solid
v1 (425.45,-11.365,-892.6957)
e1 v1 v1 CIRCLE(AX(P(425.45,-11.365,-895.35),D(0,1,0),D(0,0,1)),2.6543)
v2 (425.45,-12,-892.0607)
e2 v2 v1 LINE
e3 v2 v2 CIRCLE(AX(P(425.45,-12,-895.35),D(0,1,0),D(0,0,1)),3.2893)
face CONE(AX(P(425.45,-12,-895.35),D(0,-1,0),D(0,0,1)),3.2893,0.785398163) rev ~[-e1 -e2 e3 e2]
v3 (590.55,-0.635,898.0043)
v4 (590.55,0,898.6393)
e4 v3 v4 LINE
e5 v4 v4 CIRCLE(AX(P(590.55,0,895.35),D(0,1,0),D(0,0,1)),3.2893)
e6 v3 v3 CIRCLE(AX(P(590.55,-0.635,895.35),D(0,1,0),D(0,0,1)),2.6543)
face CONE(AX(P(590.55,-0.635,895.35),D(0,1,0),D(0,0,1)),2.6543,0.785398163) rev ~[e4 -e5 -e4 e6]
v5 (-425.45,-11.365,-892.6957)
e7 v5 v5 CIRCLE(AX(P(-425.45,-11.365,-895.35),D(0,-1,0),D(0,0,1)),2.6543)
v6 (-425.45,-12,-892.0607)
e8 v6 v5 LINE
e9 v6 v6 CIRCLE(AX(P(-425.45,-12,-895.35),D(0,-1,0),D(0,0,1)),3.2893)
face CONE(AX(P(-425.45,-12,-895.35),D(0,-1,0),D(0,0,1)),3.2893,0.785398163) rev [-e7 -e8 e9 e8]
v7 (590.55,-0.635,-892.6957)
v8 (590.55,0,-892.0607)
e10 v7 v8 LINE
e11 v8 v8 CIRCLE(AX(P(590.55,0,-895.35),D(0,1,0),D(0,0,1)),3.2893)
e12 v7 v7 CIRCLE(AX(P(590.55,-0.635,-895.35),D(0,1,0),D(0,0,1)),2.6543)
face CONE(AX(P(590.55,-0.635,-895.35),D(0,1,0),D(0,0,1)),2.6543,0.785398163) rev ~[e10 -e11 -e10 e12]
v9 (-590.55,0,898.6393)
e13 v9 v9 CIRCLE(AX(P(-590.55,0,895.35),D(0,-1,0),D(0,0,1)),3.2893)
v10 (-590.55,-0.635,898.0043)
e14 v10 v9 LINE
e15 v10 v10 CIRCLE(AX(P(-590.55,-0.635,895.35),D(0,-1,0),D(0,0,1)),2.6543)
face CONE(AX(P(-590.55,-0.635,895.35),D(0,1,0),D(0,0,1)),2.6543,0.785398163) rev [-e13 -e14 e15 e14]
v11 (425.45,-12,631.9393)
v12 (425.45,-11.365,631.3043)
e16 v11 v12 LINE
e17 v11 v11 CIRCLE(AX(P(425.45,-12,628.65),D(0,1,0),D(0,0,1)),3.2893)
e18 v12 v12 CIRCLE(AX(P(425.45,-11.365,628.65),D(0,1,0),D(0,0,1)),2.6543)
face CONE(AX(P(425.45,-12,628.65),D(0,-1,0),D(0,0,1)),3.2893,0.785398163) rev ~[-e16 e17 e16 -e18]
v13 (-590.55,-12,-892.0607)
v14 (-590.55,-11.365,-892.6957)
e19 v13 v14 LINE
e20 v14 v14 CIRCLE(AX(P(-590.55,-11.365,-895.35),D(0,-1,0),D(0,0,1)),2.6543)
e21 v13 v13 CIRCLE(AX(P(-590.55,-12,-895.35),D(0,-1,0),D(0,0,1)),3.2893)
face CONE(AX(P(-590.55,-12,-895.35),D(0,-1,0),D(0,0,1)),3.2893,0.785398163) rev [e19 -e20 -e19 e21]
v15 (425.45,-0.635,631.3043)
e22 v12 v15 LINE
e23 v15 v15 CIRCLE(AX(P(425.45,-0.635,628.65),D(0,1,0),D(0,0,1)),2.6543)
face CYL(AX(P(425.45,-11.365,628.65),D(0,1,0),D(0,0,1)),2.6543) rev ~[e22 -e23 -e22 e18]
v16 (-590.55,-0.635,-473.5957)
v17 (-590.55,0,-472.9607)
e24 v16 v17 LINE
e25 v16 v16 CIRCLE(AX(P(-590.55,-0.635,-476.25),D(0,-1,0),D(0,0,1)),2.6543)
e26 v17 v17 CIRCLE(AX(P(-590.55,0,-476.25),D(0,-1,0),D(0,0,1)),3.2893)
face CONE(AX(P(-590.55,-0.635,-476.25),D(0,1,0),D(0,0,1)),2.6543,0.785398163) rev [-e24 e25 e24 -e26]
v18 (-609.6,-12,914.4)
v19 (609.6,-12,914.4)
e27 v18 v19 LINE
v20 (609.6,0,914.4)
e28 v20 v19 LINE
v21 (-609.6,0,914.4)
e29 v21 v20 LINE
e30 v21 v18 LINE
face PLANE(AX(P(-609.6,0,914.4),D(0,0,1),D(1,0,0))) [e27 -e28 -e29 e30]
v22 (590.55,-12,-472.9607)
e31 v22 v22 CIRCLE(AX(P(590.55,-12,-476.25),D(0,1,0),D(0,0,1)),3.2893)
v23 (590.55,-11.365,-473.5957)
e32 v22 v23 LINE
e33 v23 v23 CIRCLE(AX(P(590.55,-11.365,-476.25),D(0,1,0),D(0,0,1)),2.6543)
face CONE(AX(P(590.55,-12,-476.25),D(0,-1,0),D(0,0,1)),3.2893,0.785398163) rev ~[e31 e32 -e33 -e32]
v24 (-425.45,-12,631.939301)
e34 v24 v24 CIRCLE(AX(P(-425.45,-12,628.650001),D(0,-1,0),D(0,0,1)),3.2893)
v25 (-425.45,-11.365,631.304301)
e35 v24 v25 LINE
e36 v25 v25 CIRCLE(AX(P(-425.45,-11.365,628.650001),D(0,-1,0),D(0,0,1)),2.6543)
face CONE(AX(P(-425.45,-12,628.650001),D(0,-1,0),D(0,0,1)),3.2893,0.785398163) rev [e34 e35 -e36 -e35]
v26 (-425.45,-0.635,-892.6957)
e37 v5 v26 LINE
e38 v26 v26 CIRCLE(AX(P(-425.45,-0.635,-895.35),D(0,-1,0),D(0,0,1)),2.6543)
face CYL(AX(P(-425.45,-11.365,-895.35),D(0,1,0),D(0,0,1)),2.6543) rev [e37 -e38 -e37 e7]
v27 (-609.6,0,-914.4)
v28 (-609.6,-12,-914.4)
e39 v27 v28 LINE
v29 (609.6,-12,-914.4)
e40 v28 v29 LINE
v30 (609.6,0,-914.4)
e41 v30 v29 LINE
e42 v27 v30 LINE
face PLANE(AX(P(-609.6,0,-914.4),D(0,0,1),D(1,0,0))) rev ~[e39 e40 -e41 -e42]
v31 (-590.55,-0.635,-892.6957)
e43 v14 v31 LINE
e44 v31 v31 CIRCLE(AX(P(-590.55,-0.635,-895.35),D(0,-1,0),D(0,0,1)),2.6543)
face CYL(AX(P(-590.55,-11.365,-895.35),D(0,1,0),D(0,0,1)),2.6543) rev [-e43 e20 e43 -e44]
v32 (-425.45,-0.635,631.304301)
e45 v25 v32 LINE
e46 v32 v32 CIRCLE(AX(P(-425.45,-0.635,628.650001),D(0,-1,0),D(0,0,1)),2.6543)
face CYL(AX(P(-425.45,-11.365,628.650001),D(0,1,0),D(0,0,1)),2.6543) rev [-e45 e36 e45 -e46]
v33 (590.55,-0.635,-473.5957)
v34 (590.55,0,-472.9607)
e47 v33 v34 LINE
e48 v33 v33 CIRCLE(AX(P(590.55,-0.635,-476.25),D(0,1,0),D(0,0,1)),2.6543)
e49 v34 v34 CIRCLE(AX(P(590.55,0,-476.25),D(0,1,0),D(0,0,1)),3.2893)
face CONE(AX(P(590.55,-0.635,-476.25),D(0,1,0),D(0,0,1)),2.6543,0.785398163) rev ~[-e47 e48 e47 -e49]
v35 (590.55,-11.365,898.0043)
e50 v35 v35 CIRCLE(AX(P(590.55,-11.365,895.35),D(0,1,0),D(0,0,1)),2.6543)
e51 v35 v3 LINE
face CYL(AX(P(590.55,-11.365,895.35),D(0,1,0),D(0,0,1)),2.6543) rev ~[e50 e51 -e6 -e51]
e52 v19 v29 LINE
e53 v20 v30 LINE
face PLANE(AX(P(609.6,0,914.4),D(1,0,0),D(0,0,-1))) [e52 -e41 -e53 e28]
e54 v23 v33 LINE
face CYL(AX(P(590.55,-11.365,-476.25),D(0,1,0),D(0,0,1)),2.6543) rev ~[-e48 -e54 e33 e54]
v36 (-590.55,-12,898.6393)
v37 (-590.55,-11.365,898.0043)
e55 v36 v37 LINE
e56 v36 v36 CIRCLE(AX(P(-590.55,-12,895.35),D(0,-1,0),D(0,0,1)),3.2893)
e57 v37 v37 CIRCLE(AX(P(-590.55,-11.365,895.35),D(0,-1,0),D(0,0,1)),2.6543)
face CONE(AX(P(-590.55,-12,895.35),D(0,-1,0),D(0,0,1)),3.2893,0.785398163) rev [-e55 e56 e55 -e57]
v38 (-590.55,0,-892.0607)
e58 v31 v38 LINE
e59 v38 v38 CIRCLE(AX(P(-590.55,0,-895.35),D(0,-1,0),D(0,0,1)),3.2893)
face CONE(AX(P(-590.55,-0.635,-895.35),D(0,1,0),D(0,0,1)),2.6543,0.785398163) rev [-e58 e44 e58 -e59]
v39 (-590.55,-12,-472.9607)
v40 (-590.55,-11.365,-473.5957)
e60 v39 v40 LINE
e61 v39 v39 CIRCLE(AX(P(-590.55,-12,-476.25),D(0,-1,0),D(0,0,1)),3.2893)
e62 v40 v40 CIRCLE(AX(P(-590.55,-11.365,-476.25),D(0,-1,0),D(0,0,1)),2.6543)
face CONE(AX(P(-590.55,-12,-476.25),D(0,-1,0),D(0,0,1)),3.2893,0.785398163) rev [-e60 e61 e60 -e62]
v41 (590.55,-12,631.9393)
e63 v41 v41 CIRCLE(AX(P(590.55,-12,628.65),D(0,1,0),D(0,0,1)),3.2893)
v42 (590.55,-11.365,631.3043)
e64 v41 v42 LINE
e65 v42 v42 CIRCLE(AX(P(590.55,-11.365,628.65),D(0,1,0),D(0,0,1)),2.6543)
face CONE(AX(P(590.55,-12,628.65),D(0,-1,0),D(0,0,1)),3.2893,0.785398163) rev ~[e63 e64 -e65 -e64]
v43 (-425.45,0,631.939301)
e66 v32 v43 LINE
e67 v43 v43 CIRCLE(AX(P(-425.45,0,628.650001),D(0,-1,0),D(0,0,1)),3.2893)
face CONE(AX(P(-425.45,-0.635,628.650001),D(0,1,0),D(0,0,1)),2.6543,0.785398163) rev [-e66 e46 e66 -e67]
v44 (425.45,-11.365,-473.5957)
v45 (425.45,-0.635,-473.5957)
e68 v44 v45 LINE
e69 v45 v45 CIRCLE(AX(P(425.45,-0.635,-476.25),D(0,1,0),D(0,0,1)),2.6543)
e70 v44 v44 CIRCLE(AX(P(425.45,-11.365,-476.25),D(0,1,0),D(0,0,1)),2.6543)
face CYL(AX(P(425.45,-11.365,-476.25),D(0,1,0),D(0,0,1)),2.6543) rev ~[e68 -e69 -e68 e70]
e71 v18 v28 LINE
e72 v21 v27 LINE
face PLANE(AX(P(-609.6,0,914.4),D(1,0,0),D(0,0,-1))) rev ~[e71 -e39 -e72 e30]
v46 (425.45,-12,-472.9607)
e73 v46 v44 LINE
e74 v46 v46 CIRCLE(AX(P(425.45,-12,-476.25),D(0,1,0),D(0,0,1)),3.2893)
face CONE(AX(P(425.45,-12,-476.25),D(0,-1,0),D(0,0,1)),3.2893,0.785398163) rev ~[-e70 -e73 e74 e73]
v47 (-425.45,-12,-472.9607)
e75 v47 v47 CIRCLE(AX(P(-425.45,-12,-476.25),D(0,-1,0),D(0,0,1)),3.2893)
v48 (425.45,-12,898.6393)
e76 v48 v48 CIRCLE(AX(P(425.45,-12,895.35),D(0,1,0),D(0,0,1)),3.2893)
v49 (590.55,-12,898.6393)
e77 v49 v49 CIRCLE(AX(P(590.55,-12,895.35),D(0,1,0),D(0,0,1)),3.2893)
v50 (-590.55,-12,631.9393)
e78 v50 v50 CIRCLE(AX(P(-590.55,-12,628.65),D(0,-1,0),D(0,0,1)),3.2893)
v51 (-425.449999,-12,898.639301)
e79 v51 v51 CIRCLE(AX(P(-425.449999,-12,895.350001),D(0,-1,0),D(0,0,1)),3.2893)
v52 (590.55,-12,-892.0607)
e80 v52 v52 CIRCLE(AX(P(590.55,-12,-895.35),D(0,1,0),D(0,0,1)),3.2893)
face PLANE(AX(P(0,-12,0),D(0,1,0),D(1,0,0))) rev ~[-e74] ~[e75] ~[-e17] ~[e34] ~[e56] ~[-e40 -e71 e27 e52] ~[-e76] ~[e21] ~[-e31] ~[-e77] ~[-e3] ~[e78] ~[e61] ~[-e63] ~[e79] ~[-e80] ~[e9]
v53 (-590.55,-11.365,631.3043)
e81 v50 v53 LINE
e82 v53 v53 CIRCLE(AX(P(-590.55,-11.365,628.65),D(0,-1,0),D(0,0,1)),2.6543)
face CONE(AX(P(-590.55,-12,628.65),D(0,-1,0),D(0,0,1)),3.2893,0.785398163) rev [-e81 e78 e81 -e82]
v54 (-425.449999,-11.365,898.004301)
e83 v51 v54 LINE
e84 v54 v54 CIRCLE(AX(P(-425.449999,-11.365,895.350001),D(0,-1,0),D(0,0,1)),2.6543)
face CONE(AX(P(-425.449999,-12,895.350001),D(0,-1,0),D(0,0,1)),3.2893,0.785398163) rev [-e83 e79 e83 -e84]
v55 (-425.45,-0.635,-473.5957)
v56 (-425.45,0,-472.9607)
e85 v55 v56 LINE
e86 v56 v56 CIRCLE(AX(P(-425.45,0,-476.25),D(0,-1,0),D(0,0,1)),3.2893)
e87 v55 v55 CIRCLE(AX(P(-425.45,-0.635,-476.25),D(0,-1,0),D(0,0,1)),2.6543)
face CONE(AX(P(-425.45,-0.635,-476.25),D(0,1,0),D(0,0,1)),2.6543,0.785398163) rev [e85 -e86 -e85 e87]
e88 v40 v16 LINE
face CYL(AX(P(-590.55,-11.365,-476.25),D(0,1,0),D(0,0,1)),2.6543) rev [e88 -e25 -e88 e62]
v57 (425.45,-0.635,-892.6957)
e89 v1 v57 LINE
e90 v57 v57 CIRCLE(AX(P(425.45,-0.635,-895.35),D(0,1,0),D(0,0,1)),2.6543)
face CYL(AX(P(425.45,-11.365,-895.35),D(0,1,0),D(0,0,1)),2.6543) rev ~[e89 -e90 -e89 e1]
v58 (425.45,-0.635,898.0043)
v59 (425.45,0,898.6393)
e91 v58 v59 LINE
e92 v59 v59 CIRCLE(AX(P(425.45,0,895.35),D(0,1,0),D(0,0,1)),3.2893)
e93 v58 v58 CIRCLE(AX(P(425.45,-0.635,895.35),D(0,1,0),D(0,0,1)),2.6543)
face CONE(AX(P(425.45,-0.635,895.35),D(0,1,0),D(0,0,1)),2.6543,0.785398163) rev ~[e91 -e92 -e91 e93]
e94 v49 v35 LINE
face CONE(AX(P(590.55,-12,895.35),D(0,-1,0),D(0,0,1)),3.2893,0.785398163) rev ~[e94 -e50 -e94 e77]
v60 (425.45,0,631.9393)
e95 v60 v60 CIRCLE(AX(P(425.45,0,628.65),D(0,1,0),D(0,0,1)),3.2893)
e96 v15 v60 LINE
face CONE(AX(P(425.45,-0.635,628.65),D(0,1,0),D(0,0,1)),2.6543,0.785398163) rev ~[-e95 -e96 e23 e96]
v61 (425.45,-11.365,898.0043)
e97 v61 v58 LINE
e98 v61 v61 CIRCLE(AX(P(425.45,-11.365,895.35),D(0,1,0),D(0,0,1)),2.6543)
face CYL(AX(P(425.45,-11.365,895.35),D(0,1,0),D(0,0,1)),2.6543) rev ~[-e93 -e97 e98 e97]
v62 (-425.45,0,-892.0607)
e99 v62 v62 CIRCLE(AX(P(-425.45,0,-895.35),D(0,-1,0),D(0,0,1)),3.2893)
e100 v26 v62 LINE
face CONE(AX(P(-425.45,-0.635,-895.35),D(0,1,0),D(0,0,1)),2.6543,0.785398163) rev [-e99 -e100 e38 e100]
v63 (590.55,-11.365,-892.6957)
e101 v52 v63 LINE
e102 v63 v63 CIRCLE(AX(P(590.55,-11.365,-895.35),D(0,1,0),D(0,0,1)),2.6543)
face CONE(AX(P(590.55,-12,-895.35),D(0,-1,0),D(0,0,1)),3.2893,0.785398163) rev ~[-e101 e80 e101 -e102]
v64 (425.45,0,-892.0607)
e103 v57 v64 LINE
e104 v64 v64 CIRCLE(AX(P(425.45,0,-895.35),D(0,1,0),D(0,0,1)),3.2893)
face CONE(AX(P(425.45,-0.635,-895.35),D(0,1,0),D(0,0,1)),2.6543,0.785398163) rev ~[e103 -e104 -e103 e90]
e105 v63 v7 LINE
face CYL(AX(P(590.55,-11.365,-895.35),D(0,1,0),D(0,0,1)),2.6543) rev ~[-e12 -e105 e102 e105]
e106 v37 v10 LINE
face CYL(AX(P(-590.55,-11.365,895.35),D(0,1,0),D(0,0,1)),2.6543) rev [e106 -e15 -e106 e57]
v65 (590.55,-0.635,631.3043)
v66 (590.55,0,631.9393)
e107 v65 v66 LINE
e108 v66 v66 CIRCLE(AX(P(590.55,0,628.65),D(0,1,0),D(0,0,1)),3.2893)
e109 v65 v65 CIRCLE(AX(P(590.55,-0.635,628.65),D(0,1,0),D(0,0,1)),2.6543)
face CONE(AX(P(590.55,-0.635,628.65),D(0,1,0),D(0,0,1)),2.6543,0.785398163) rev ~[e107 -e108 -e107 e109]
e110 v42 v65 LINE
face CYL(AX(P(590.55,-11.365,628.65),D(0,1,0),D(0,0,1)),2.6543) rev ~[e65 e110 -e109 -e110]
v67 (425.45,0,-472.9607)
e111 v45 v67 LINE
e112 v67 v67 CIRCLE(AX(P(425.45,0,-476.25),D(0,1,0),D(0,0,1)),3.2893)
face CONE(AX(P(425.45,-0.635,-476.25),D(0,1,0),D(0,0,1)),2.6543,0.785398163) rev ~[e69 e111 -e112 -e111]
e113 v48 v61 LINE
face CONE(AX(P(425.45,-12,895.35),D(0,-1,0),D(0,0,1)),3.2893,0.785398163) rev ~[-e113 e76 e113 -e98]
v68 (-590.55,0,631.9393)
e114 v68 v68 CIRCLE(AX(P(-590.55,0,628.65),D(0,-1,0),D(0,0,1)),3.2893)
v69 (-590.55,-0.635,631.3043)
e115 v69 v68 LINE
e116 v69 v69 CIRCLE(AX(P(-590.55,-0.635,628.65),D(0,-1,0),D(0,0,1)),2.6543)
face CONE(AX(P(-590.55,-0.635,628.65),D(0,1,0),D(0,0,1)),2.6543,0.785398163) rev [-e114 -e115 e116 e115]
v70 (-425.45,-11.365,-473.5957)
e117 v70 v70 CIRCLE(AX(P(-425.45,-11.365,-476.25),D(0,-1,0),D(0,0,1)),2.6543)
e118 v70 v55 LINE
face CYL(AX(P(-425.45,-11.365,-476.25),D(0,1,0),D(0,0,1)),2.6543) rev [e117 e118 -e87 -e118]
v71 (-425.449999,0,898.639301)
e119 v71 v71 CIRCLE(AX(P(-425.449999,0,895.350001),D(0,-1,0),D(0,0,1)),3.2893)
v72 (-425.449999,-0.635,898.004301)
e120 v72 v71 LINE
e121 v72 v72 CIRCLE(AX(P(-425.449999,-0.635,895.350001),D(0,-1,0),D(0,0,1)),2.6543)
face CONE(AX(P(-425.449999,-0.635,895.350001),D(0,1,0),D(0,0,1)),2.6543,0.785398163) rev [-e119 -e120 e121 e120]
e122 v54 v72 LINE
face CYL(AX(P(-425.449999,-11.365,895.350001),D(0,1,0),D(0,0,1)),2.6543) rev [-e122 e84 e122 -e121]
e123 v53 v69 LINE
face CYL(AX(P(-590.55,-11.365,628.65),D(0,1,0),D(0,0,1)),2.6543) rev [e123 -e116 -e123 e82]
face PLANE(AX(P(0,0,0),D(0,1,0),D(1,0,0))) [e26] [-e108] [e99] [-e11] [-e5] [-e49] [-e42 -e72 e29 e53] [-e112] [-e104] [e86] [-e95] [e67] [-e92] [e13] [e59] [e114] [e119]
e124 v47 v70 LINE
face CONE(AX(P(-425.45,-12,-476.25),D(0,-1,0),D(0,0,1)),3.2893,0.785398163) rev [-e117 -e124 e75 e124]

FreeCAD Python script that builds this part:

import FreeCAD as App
import Part
import Sketcher

V = App.Vector
Q = App.Units.Quantity

doc = App.newDocument("Part")
params = doc.addObject("Spreadsheet::Sheet", "Params")
for row, (alias, value) in enumerate([
    ("sketch1_width", "48 in"),
    ("sketch1_height", "72 in"),
    ("pad1_length", "12 mm"),
    ("groove_angle", "360 deg"),
    ("linearpattern_pitch", "6.5 in"),
    ("linearpattern2_pitch", "450.447355 mm"),
    ("linearpattern3_pitch", "16.5 in"),
    ("linearpattern4_pitch", "60 in"),
    ("linearpattern5_pitch", "1532.916832 mm"),
    ("linearpattern6_pitch", "1798.294887 mm"),
    ("linearpattern7_pitch", "70.5 in"),
    ("groove2_angle", "360 deg"),
    ("groove3_angle", "360 deg"),
    ("groove4_angle", "360 deg"),
    ("groove5_angle", "360 deg"),
    ("groove6_angle", "360 deg"),
    ("groove7_angle", "360 deg"),
    ("groove8_angle", "360 deg"),
], start=1):
    params.set(f"A{row}", alias)
    params.set(f"B{row}", "=" + value)
    params.setAlias(f"B{row}", alias)

body = doc.addObject("PartDesign::Body", "Body")

# Sketch on XZ plane
sketch1 = body.newObject("Sketcher::SketchObject", "Sketch")
sketch1.AttachmentSupport = (doc.getObject("XZ_Plane"), [""])
sketch1.MapMode = "FlatFace"
sketch1.addGeometry([
    Part.LineSegment(V(-610, -914, 0), V(-610, 914, 0)),
    Part.LineSegment(V(-610, 914, 0), V(610, 914, 0)),
    Part.LineSegment(V(610, 914, 0), V(610, -914, 0)),
    Part.LineSegment(V(610, -914, 0), V(-610, -914, 0)),
], False)
sketch1.addConstraint([
    Sketcher.Constraint("Coincident", 0, 2, 1, 1),
    Sketcher.Constraint("Coincident", 1, 2, 2, 1),
    Sketcher.Constraint("Coincident", 2, 2, 3, 1),
    Sketcher.Constraint("Coincident", 3, 2, 0, 1),
    Sketcher.Constraint("Vertical", 0),
    Sketcher.Constraint("Horizontal", 1),
    Sketcher.Constraint("Vertical", 2),
    Sketcher.Constraint("Horizontal", 3),
    Sketcher.Constraint("Symmetric", 0, 2, 2, 2, -1, 1),
    Sketcher.Constraint("DistanceX", 1, 1, 1, 2, Q("48 in")),
    Sketcher.Constraint("DistanceY", 0, 1, 0, 2, Q("72 in")),
])
sketch1.setExpression("Constraints[9]", "Params.sketch1_width")
sketch1.setExpression("Constraints[10]", "Params.sketch1_height")
pad1 = body.newObject("PartDesign::Pad", "Pad")
pad1.Profile = sketch1
pad1.setExpression("Length", "Params.pad1_length")

# Sketch on YZ plane
sketch2 = body.newObject("Sketcher::SketchObject", "Sketch001")
sketch2.AttachmentSupport = (doc.getObject("YZ_Plane"), [""])
sketch2.MapMode = "FlatFace"
sketch2.AttachmentOffset = App.Placement(V(0, 0, -23.25 * 25.4), App.Rotation())
sketch2.addGeometry([
    Part.LineSegment(V(-12, -895.4, 0), V(0, -895.4, 0)),  # 0
    Part.LineSegment(V(0, -895.4, 0), V(0, -892.1, 0)),  # 1
    Part.LineSegment(V(0, -892.1, 0), V(-0.6, -892.7, 0)),  # 2
    Part.LineSegment(V(-0.6, -892.7, 0), V(-11.4, -892.7, 0)),  # 3
    Part.LineSegment(V(-11.4, -892.7, 0), V(-12, -892.1, 0)),  # 4
    Part.LineSegment(V(-12, -892.1, 0), V(-12, -895.4, 0)),  # 5
], False)
sketch2.addGeometry(Part.LineSegment(V(0, -895.4, 0), V(-12, -895.4, 0)), True)  # axis
sketch2.addConstraint([
    Sketcher.Constraint("Coincident", 0, 2, 1, 1),
    Sketcher.Constraint("Coincident", 1, 2, 2, 1),
    Sketcher.Constraint("Coincident", 2, 2, 3, 1),
    Sketcher.Constraint("Coincident", 3, 2, 4, 1),
    Sketcher.Constraint("Coincident", 4, 2, 5, 1),
    Sketcher.Constraint("Coincident", 5, 2, 0, 1),
    Sketcher.Constraint("Horizontal", 0),
    Sketcher.Constraint("Vertical", 1),
    Sketcher.Constraint("Horizontal", 3),
    Sketcher.Constraint("Vertical", 5),
    Sketcher.Constraint("Horizontal", 6),
    Sketcher.Constraint("Coincident", 6, 1, 0, 2),
    Sketcher.Constraint("PointOnObject", 0, 2, -2),
    Sketcher.Constraint("Perpendicular", 2, 4),
    Sketcher.Constraint("Horizontal", 1, 2, 4, 2),
    Sketcher.Constraint("Vertical", 4, 2, 6, 2),
    Sketcher.Constraint("Equal", 2, 4),
    Sketcher.Constraint("DistanceY", 0, 2, -1, 1, Q("35.25 in")),
    Sketcher.Constraint("DistanceY", 1, 1, 1, 2, Q("0.1295 in")),
    Sketcher.Constraint("DistanceX", 2, 2, -1, 1, Q("0.025 in")),
    Sketcher.Constraint("DistanceX", 0, 1, 0, 2, Q("12 mm")),
])
groove = body.newObject("PartDesign::Groove", "Groove")
groove.Profile = sketch2
groove.ReferenceAxis = (sketch2, ["Axis0"])
groove.setExpression("Angle", "Params.groove_angle")
doc.recompute()

linearpattern = body.newObject("PartDesign::LinearPattern", "LinearPattern")
linearpattern.Originals = [groove]
linearpattern.Direction = (doc.getObject("X_Axis"), [""])
linearpattern.Mode = "offset"
linearpattern.setExpression("Offset", "Params.linearpattern_pitch")
linearpattern.Occurrences = 2
body.Tip = linearpattern
doc.recompute()

datumline = body.newObject("PartDesign::Line", "DatumLine")
datumline.Placement = App.Placement(V(0, 0, 0), App.Rotation(V(0, 0, 1), V(0.366524518, 0, 0.930408393)))
linearpattern2 = body.newObject("PartDesign::LinearPattern", "LinearPattern001")
linearpattern2.Originals = [groove]
linearpattern2.Direction = (datumline, [""])
linearpattern2.Mode = "offset"
linearpattern2.setExpression("Offset", "Params.linearpattern2_pitch")
linearpattern2.Occurrences = 2
body.Tip = linearpattern2
doc.recompute()

linearpattern3 = body.newObject("PartDesign::LinearPattern", "LinearPattern002")
linearpattern3.Originals = [groove]
linearpattern3.Direction = (doc.getObject("Z_Axis"), [""])
linearpattern3.Mode = "offset"
linearpattern3.setExpression("Offset", "Params.linearpattern3_pitch")
linearpattern3.Occurrences = 2
body.Tip = linearpattern3
doc.recompute()

linearpattern4 = body.newObject("PartDesign::LinearPattern", "LinearPattern003")
linearpattern4.Originals = [groove]
linearpattern4.Direction = (doc.getObject("Z_Axis"), [""])
linearpattern4.Mode = "offset"
linearpattern4.setExpression("Offset", "Params.linearpattern4_pitch")
linearpattern4.Occurrences = 2
body.Tip = linearpattern4
doc.recompute()

datumline2 = body.newObject("PartDesign::Line", "DatumLine001")
datumline2.Placement = App.Placement(V(0, 0, 0), App.Rotation(V(0, 0, 1), V(0.107703169, 0, 0.994183096)))
linearpattern5 = body.newObject("PartDesign::LinearPattern", "LinearPattern004")
linearpattern5.Originals = [groove]
linearpattern5.Direction = (datumline2, [""])
linearpattern5.Mode = "offset"
linearpattern5.setExpression("Offset", "Params.linearpattern5_pitch")
linearpattern5.Occurrences = 2
body.Tip = linearpattern5
doc.recompute()

datumline3 = body.newObject("PartDesign::Line", "DatumLine002")
datumline3.Placement = App.Placement(V(0, 0, 0), App.Rotation(V(0, 0, 1), V(0.091809192, 0, 0.995776618)))
linearpattern6 = body.newObject("PartDesign::LinearPattern", "LinearPattern005")
linearpattern6.Originals = [groove]
linearpattern6.Direction = (datumline3, [""])
linearpattern6.Mode = "offset"
linearpattern6.setExpression("Offset", "Params.linearpattern6_pitch")
linearpattern6.Occurrences = 2
body.Tip = linearpattern6
doc.recompute()

linearpattern7 = body.newObject("PartDesign::LinearPattern", "LinearPattern006")
linearpattern7.Originals = [groove]
linearpattern7.Direction = (doc.getObject("Z_Axis"), [""])
linearpattern7.Mode = "offset"
linearpattern7.setExpression("Offset", "Params.linearpattern7_pitch")
linearpattern7.Occurrences = 2
body.Tip = linearpattern7
doc.recompute()

mirrored = body.newObject("PartDesign::Mirrored", "Mirrored")
mirrored.Originals = [groove]
mirrored.MirrorPlane = (doc.getObject("YZ_Plane"), [""])
body.Tip = mirrored

# Sketch on YZ plane
sketch3 = body.newObject("Sketcher::SketchObject", "Sketch002")
sketch3.AttachmentSupport = (doc.getObject("YZ_Plane"), [""])
sketch3.MapMode = "FlatFace"
sketch3.AttachmentOffset = App.Placement(V(0, 0, 16.75 * 25.4), App.Rotation())
sketch3.addGeometry([
    Part.LineSegment(V(0, -895.4, 0), V(-12, -895.4, 0)),  # 0
    Part.LineSegment(V(-12, -895.4, 0), V(-12, -892.1, 0)),  # 1
    Part.LineSegment(V(-12, -892.1, 0), V(-11.4, -892.7, 0)),  # 2
    Part.LineSegment(V(-11.4, -892.7, 0), V(-0.6, -892.7, 0)),  # 3
    Part.LineSegment(V(-0.6, -892.7, 0), V(0, -892.1, 0)),  # 4
    Part.LineSegment(V(0, -892.1, 0), V(0, -895.4, 0)),  # 5
], False)
sketch3.addGeometry(Part.LineSegment(V(-12, -895.4, 0), V(0, -895.4, 0)), True)  # axis
sketch3.addConstraint([
    Sketcher.Constraint("Coincident", 0, 2, 1, 1),
    Sketcher.Constraint("Coincident", 1, 2, 2, 1),
    Sketcher.Constraint("Coincident", 2, 2, 3, 1),
    Sketcher.Constraint("Coincident", 3, 2, 4, 1),
    Sketcher.Constraint("Coincident", 4, 2, 5, 1),
    Sketcher.Constraint("Coincident", 5, 2, 0, 1),
    Sketcher.Constraint("Horizontal", 0),
    Sketcher.Constraint("Vertical", 1),
    Sketcher.Constraint("Horizontal", 3),
    Sketcher.Constraint("Vertical", 5),
    Sketcher.Constraint("Horizontal", 6),
    Sketcher.Constraint("Coincident", 6, 1, 0, 2),
    Sketcher.Constraint("PointOnObject", 4, 2, -2),
    Sketcher.Constraint("PointOnObject", 6, 2, -2),
    Sketcher.Constraint("Perpendicular", 2, 4),
    Sketcher.Constraint("Horizontal", 1, 2, 4, 2),
    Sketcher.Constraint("Equal", 2, 4),
    Sketcher.Constraint("DistanceY", 0, 2, -1, 1, Q("35.25 in")),
    Sketcher.Constraint("DistanceY", 1, 1, 1, 2, Q("0.1295 in")),
    Sketcher.Constraint("DistanceX", 3, 2, -1, 1, Q("0.025 in")),
    Sketcher.Constraint("DistanceX", 0, 2, 0, 1, Q("12 mm")),
])
groove2 = body.newObject("PartDesign::Groove", "Groove001")
groove2.Profile = sketch3
groove2.ReferenceAxis = (sketch3, ["Axis0"])
groove2.setExpression("Angle", "Params.groove2_angle")

# Sketch on YZ plane
sketch4 = body.newObject("Sketcher::SketchObject", "Sketch003")
sketch4.AttachmentSupport = (doc.getObject("YZ_Plane"), [""])
sketch4.MapMode = "FlatFace"
sketch4.AttachmentOffset = App.Placement(V(0, 0, 16.75 * 25.4), App.Rotation())
sketch4.addGeometry([
    Part.LineSegment(V(0, -476.2, 0), V(-12, -476.2, 0)),  # 0
    Part.LineSegment(V(-12, -476.2, 0), V(-12, -473, 0)),  # 1
    Part.LineSegment(V(-12, -473, 0), V(-11.4, -473.6, 0)),  # 2
    Part.LineSegment(V(-11.4, -473.6, 0), V(-0.6, -473.6, 0)),  # 3
    Part.LineSegment(V(-0.6, -473.6, 0), V(0, -473, 0)),  # 4
    Part.LineSegment(V(0, -473, 0), V(0, -476.2, 0)),  # 5
], False)
sketch4.addGeometry(Part.LineSegment(V(-12, -476.2, 0), V(0, -476.2, 0)), True)  # axis
sketch4.addConstraint([
    Sketcher.Constraint("Coincident", 0, 2, 1, 1),
    Sketcher.Constraint("Coincident", 1, 2, 2, 1),
    Sketcher.Constraint("Coincident", 2, 2, 3, 1),
    Sketcher.Constraint("Coincident", 3, 2, 4, 1),
    Sketcher.Constraint("Coincident", 4, 2, 5, 1),
    Sketcher.Constraint("Coincident", 5, 2, 0, 1),
    Sketcher.Constraint("Horizontal", 0),
    Sketcher.Constraint("Vertical", 1),
    Sketcher.Constraint("Horizontal", 3),
    Sketcher.Constraint("Vertical", 5),
    Sketcher.Constraint("Horizontal", 6),
    Sketcher.Constraint("Coincident", 6, 1, 0, 2),
    Sketcher.Constraint("PointOnObject", 4, 2, -2),
    Sketcher.Constraint("PointOnObject", 6, 2, -2),
    Sketcher.Constraint("Perpendicular", 2, 4),
    Sketcher.Constraint("Horizontal", 1, 2, 4, 2),
    Sketcher.Constraint("Equal", 2, 4),
    Sketcher.Constraint("DistanceY", 0, 2, -1, 1, Q("18.75 in")),
    Sketcher.Constraint("DistanceY", 1, 1, 1, 2, Q("0.1295 in")),
    Sketcher.Constraint("DistanceX", 3, 2, -1, 1, Q("0.025 in")),
    Sketcher.Constraint("DistanceX", 0, 2, 0, 1, Q("12 mm")),
])
groove3 = body.newObject("PartDesign::Groove", "Groove002")
groove3.Profile = sketch4
groove3.ReferenceAxis = (sketch4, ["Axis0"])
groove3.setExpression("Angle", "Params.groove3_angle")

# Sketch on YZ plane
sketch5 = body.newObject("Sketcher::SketchObject", "Sketch004")
sketch5.AttachmentSupport = (doc.getObject("YZ_Plane"), [""])
sketch5.MapMode = "FlatFace"
sketch5.AttachmentOffset = App.Placement(V(0, 0, 23.25 * 25.4), App.Rotation())
sketch5.addGeometry([
    Part.LineSegment(V(0, -476.2, 0), V(-12, -476.2, 0)),  # 0
    Part.LineSegment(V(-12, -476.2, 0), V(-12, -473, 0)),  # 1
    Part.LineSegment(V(-12, -473, 0), V(-11.4, -473.6, 0)),  # 2
    Part.LineSegment(V(-11.4, -473.6, 0), V(-0.6, -473.6, 0)),  # 3
    Part.LineSegment(V(-0.6, -473.6, 0), V(0, -473, 0)),  # 4
    Part.LineSegment(V(0, -473, 0), V(0, -476.2, 0)),  # 5
], False)
sketch5.addGeometry(Part.LineSegment(V(-12, -476.2, 0), V(0, -476.2, 0)), True)  # axis
sketch5.addConstraint([
    Sketcher.Constraint("Coincident", 0, 2, 1, 1),
    Sketcher.Constraint("Coincident", 1, 2, 2, 1),
    Sketcher.Constraint("Coincident", 2, 2, 3, 1),
    Sketcher.Constraint("Coincident", 3, 2, 4, 1),
    Sketcher.Constraint("Coincident", 4, 2, 5, 1),
    Sketcher.Constraint("Coincident", 5, 2, 0, 1),
    Sketcher.Constraint("Horizontal", 0),
    Sketcher.Constraint("Vertical", 1),
    Sketcher.Constraint("Horizontal", 3),
    Sketcher.Constraint("Vertical", 5),
    Sketcher.Constraint("Horizontal", 6),
    Sketcher.Constraint("Coincident", 6, 1, 0, 2),
    Sketcher.Constraint("PointOnObject", 4, 2, -2),
    Sketcher.Constraint("PointOnObject", 6, 2, -2),
    Sketcher.Constraint("Perpendicular", 2, 4),
    Sketcher.Constraint("Horizontal", 1, 2, 4, 2),
    Sketcher.Constraint("Equal", 2, 4),
    Sketcher.Constraint("DistanceY", 0, 2, -1, 1, Q("18.75 in")),
    Sketcher.Constraint("DistanceY", 1, 1, 1, 2, Q("0.1295 in")),
    Sketcher.Constraint("DistanceX", 3, 2, -1, 1, Q("0.025 in")),
    Sketcher.Constraint("DistanceX", 0, 2, 0, 1, Q("12 mm")),
])
groove4 = body.newObject("PartDesign::Groove", "Groove003")
groove4.Profile = sketch5
groove4.ReferenceAxis = (sketch5, ["Axis0"])
groove4.setExpression("Angle", "Params.groove4_angle")

# Sketch on YZ plane
sketch6 = body.newObject("Sketcher::SketchObject", "Sketch005")
sketch6.AttachmentSupport = (doc.getObject("YZ_Plane"), [""])
sketch6.MapMode = "FlatFace"
sketch6.AttachmentOffset = App.Placement(V(0, 0, 23.25 * 25.4), App.Rotation())
sketch6.addGeometry([
    Part.LineSegment(V(0, 628.6, 0), V(-12, 628.6, 0)),  # 0
    Part.LineSegment(V(-12, 628.6, 0), V(-12, 631.9, 0)),  # 1
    Part.LineSegment(V(-12, 631.9, 0), V(-11.4, 631.3, 0)),  # 2
    Part.LineSegment(V(-11.4, 631.3, 0), V(-0.6, 631.3, 0)),  # 3
    Part.LineSegment(V(-0.6, 631.3, 0), V(0, 631.9, 0)),  # 4
    Part.LineSegment(V(0, 631.9, 0), V(0, 628.6, 0)),  # 5
], False)
sketch6.addGeometry(Part.LineSegment(V(-12, 628.6, 0), V(0, 628.6, 0)), True)  # axis
sketch6.addConstraint([
    Sketcher.Constraint("Coincident", 0, 2, 1, 1),
    Sketcher.Constraint("Coincident", 1, 2, 2, 1),
    Sketcher.Constraint("Coincident", 2, 2, 3, 1),
    Sketcher.Constraint("Coincident", 3, 2, 4, 1),
    Sketcher.Constraint("Coincident", 4, 2, 5, 1),
    Sketcher.Constraint("Coincident", 5, 2, 0, 1),
    Sketcher.Constraint("Horizontal", 0),
    Sketcher.Constraint("Vertical", 1),
    Sketcher.Constraint("Horizontal", 3),
    Sketcher.Constraint("Vertical", 5),
    Sketcher.Constraint("Horizontal", 6),
    Sketcher.Constraint("Coincident", 6, 1, 0, 2),
    Sketcher.Constraint("PointOnObject", 4, 2, -2),
    Sketcher.Constraint("PointOnObject", 6, 2, -2),
    Sketcher.Constraint("Perpendicular", 2, 4),
    Sketcher.Constraint("Horizontal", 1, 2, 4, 2),
    Sketcher.Constraint("Equal", 2, 4),
    Sketcher.Constraint("DistanceY", -1, 1, 0, 2, Q("24.75 in")),
    Sketcher.Constraint("DistanceY", 1, 1, 1, 2, Q("0.1295 in")),
    Sketcher.Constraint("DistanceX", 3, 2, -1, 1, Q("0.025 in")),
    Sketcher.Constraint("DistanceX", 0, 2, 0, 1, Q("12 mm")),
])
groove5 = body.newObject("PartDesign::Groove", "Groove004")
groove5.Profile = sketch6
groove5.ReferenceAxis = (sketch6, ["Axis0"])
groove5.setExpression("Angle", "Params.groove5_angle")

# Sketch on YZ plane
sketch7 = body.newObject("Sketcher::SketchObject", "Sketch006")
sketch7.AttachmentSupport = (doc.getObject("YZ_Plane"), [""])
sketch7.MapMode = "FlatFace"
sketch7.AttachmentOffset = App.Placement(V(0, 0, 16.75 * 25.4), App.Rotation())
sketch7.addGeometry([
    Part.LineSegment(V(0, 628.6, 0), V(-12, 628.6, 0)),  # 0
    Part.LineSegment(V(-12, 628.6, 0), V(-12, 631.9, 0)),  # 1
    Part.LineSegment(V(-12, 631.9, 0), V(-11.4, 631.3, 0)),  # 2
    Part.LineSegment(V(-11.4, 631.3, 0), V(-0.6, 631.3, 0)),  # 3
    Part.LineSegment(V(-0.6, 631.3, 0), V(0, 631.9, 0)),  # 4
    Part.LineSegment(V(0, 631.9, 0), V(0, 628.6, 0)),  # 5
], False)
sketch7.addGeometry(Part.LineSegment(V(-12, 628.6, 0), V(0, 628.6, 0)), True)  # axis
sketch7.addConstraint([
    Sketcher.Constraint("Coincident", 0, 2, 1, 1),
    Sketcher.Constraint("Coincident", 1, 2, 2, 1),
    Sketcher.Constraint("Coincident", 2, 2, 3, 1),
    Sketcher.Constraint("Coincident", 3, 2, 4, 1),
    Sketcher.Constraint("Coincident", 4, 2, 5, 1),
    Sketcher.Constraint("Coincident", 5, 2, 0, 1),
    Sketcher.Constraint("Horizontal", 0),
    Sketcher.Constraint("Vertical", 1),
    Sketcher.Constraint("Horizontal", 3),
    Sketcher.Constraint("Vertical", 5),
    Sketcher.Constraint("Horizontal", 6),
    Sketcher.Constraint("Coincident", 6, 1, 0, 2),
    Sketcher.Constraint("PointOnObject", 4, 2, -2),
    Sketcher.Constraint("PointOnObject", 6, 2, -2),
    Sketcher.Constraint("Perpendicular", 2, 4),
    Sketcher.Constraint("Horizontal", 1, 2, 4, 2),
    Sketcher.Constraint("Equal", 2, 4),
    Sketcher.Constraint("DistanceY", -1, 1, 0, 2, Q("24.75 in")),
    Sketcher.Constraint("DistanceY", 1, 1, 1, 2, Q("0.1295 in")),
    Sketcher.Constraint("DistanceX", 3, 2, -1, 1, Q("0.025 in")),
    Sketcher.Constraint("DistanceX", 0, 2, 0, 1, Q("12 mm")),
])
groove6 = body.newObject("PartDesign::Groove", "Groove005")
groove6.Profile = sketch7
groove6.ReferenceAxis = (sketch7, ["Axis0"])
groove6.setExpression("Angle", "Params.groove6_angle")

# Sketch on YZ plane
sketch8 = body.newObject("Sketcher::SketchObject", "Sketch007")
sketch8.AttachmentSupport = (doc.getObject("YZ_Plane"), [""])
sketch8.MapMode = "FlatFace"
sketch8.AttachmentOffset = App.Placement(V(0, 0, 16.75 * 25.4), App.Rotation())
sketch8.addGeometry([
    Part.LineSegment(V(0, 895.4, 0), V(-12, 895.4, 0)),  # 0
    Part.LineSegment(V(-12, 895.4, 0), V(-12, 898.6, 0)),  # 1
    Part.LineSegment(V(-12, 898.6, 0), V(-11.4, 898, 0)),  # 2
    Part.LineSegment(V(-11.4, 898, 0), V(-0.6, 898, 0)),  # 3
    Part.LineSegment(V(-0.6, 898, 0), V(0, 898.6, 0)),  # 4
    Part.LineSegment(V(0, 898.6, 0), V(0, 895.4, 0)),  # 5
], False)
sketch8.addGeometry(Part.LineSegment(V(-12, 895.4, 0), V(0, 895.4, 0)), True)  # axis
sketch8.addConstraint([
    Sketcher.Constraint("Coincident", 0, 2, 1, 1),
    Sketcher.Constraint("Coincident", 1, 2, 2, 1),
    Sketcher.Constraint("Coincident", 2, 2, 3, 1),
    Sketcher.Constraint("Coincident", 3, 2, 4, 1),
    Sketcher.Constraint("Coincident", 4, 2, 5, 1),
    Sketcher.Constraint("Coincident", 5, 2, 0, 1),
    Sketcher.Constraint("Horizontal", 0),
    Sketcher.Constraint("Vertical", 1),
    Sketcher.Constraint("Horizontal", 3),
    Sketcher.Constraint("Vertical", 5),
    Sketcher.Constraint("Horizontal", 6),
    Sketcher.Constraint("Coincident", 6, 1, 0, 2),
    Sketcher.Constraint("PointOnObject", 4, 2, -2),
    Sketcher.Constraint("PointOnObject", 6, 2, -2),
    Sketcher.Constraint("Perpendicular", 2, 4),
    Sketcher.Constraint("Horizontal", 1, 2, 4, 2),
    Sketcher.Constraint("Equal", 2, 4),
    Sketcher.Constraint("DistanceY", -1, 1, 0, 2, Q("35.25 in")),
    Sketcher.Constraint("DistanceY", 1, 1, 1, 2, Q("0.1295 in")),
    Sketcher.Constraint("DistanceX", 3, 2, -1, 1, Q("0.025 in")),
    Sketcher.Constraint("DistanceX", 0, 2, 0, 1, Q("12 mm")),
])
groove7 = body.newObject("PartDesign::Groove", "Groove006")
groove7.Profile = sketch8
groove7.ReferenceAxis = (sketch8, ["Axis0"])
groove7.setExpression("Angle", "Params.groove7_angle")

# Sketch on YZ plane
sketch9 = body.newObject("Sketcher::SketchObject", "Sketch008")
sketch9.AttachmentSupport = (doc.getObject("YZ_Plane"), [""])
sketch9.MapMode = "FlatFace"
sketch9.AttachmentOffset = App.Placement(V(0, 0, 23.25 * 25.4), App.Rotation())
sketch9.addGeometry([
    Part.LineSegment(V(0, 895.4, 0), V(-12, 895.4, 0)),  # 0
    Part.LineSegment(V(-12, 895.4, 0), V(-12, 898.6, 0)),  # 1
    Part.LineSegment(V(-12, 898.6, 0), V(-11.4, 898, 0)),  # 2
    Part.LineSegment(V(-11.4, 898, 0), V(-0.6, 898, 0)),  # 3
    Part.LineSegment(V(-0.6, 898, 0), V(0, 898.6, 0)),  # 4
    Part.LineSegment(V(0, 898.6, 0), V(0, 895.4, 0)),  # 5
], False)
sketch9.addGeometry(Part.LineSegment(V(-12, 895.4, 0), V(0, 895.4, 0)), True)  # axis
sketch9.addConstraint([
    Sketcher.Constraint("Coincident", 0, 2, 1, 1),
    Sketcher.Constraint("Coincident", 1, 2, 2, 1),
    Sketcher.Constraint("Coincident", 2, 2, 3, 1),
    Sketcher.Constraint("Coincident", 3, 2, 4, 1),
    Sketcher.Constraint("Coincident", 4, 2, 5, 1),
    Sketcher.Constraint("Coincident", 5, 2, 0, 1),
    Sketcher.Constraint("Horizontal", 0),
    Sketcher.Constraint("Vertical", 1),
    Sketcher.Constraint("Horizontal", 3),
    Sketcher.Constraint("Vertical", 5),
    Sketcher.Constraint("Horizontal", 6),
    Sketcher.Constraint("Coincident", 6, 1, 0, 2),
    Sketcher.Constraint("PointOnObject", 4, 2, -2),
    Sketcher.Constraint("PointOnObject", 6, 2, -2),
    Sketcher.Constraint("Perpendicular", 2, 4),
    Sketcher.Constraint("Horizontal", 1, 2, 4, 2),
    Sketcher.Constraint("Equal", 2, 4),
    Sketcher.Constraint("DistanceY", -1, 1, 0, 2, Q("35.25 in")),
    Sketcher.Constraint("DistanceY", 1, 1, 1, 2, Q("0.1295 in")),
    Sketcher.Constraint("DistanceX", 3, 2, -1, 1, Q("0.025 in")),
    Sketcher.Constraint("DistanceX", 0, 2, 0, 1, Q("12 mm")),
])
groove8 = body.newObject("PartDesign::Groove", "Groove007")
groove8.Profile = sketch9
groove8.ReferenceAxis = (sketch9, ["Axis0"])
groove8.setExpression("Angle", "Params.groove8_angle")

doc.recompute()
